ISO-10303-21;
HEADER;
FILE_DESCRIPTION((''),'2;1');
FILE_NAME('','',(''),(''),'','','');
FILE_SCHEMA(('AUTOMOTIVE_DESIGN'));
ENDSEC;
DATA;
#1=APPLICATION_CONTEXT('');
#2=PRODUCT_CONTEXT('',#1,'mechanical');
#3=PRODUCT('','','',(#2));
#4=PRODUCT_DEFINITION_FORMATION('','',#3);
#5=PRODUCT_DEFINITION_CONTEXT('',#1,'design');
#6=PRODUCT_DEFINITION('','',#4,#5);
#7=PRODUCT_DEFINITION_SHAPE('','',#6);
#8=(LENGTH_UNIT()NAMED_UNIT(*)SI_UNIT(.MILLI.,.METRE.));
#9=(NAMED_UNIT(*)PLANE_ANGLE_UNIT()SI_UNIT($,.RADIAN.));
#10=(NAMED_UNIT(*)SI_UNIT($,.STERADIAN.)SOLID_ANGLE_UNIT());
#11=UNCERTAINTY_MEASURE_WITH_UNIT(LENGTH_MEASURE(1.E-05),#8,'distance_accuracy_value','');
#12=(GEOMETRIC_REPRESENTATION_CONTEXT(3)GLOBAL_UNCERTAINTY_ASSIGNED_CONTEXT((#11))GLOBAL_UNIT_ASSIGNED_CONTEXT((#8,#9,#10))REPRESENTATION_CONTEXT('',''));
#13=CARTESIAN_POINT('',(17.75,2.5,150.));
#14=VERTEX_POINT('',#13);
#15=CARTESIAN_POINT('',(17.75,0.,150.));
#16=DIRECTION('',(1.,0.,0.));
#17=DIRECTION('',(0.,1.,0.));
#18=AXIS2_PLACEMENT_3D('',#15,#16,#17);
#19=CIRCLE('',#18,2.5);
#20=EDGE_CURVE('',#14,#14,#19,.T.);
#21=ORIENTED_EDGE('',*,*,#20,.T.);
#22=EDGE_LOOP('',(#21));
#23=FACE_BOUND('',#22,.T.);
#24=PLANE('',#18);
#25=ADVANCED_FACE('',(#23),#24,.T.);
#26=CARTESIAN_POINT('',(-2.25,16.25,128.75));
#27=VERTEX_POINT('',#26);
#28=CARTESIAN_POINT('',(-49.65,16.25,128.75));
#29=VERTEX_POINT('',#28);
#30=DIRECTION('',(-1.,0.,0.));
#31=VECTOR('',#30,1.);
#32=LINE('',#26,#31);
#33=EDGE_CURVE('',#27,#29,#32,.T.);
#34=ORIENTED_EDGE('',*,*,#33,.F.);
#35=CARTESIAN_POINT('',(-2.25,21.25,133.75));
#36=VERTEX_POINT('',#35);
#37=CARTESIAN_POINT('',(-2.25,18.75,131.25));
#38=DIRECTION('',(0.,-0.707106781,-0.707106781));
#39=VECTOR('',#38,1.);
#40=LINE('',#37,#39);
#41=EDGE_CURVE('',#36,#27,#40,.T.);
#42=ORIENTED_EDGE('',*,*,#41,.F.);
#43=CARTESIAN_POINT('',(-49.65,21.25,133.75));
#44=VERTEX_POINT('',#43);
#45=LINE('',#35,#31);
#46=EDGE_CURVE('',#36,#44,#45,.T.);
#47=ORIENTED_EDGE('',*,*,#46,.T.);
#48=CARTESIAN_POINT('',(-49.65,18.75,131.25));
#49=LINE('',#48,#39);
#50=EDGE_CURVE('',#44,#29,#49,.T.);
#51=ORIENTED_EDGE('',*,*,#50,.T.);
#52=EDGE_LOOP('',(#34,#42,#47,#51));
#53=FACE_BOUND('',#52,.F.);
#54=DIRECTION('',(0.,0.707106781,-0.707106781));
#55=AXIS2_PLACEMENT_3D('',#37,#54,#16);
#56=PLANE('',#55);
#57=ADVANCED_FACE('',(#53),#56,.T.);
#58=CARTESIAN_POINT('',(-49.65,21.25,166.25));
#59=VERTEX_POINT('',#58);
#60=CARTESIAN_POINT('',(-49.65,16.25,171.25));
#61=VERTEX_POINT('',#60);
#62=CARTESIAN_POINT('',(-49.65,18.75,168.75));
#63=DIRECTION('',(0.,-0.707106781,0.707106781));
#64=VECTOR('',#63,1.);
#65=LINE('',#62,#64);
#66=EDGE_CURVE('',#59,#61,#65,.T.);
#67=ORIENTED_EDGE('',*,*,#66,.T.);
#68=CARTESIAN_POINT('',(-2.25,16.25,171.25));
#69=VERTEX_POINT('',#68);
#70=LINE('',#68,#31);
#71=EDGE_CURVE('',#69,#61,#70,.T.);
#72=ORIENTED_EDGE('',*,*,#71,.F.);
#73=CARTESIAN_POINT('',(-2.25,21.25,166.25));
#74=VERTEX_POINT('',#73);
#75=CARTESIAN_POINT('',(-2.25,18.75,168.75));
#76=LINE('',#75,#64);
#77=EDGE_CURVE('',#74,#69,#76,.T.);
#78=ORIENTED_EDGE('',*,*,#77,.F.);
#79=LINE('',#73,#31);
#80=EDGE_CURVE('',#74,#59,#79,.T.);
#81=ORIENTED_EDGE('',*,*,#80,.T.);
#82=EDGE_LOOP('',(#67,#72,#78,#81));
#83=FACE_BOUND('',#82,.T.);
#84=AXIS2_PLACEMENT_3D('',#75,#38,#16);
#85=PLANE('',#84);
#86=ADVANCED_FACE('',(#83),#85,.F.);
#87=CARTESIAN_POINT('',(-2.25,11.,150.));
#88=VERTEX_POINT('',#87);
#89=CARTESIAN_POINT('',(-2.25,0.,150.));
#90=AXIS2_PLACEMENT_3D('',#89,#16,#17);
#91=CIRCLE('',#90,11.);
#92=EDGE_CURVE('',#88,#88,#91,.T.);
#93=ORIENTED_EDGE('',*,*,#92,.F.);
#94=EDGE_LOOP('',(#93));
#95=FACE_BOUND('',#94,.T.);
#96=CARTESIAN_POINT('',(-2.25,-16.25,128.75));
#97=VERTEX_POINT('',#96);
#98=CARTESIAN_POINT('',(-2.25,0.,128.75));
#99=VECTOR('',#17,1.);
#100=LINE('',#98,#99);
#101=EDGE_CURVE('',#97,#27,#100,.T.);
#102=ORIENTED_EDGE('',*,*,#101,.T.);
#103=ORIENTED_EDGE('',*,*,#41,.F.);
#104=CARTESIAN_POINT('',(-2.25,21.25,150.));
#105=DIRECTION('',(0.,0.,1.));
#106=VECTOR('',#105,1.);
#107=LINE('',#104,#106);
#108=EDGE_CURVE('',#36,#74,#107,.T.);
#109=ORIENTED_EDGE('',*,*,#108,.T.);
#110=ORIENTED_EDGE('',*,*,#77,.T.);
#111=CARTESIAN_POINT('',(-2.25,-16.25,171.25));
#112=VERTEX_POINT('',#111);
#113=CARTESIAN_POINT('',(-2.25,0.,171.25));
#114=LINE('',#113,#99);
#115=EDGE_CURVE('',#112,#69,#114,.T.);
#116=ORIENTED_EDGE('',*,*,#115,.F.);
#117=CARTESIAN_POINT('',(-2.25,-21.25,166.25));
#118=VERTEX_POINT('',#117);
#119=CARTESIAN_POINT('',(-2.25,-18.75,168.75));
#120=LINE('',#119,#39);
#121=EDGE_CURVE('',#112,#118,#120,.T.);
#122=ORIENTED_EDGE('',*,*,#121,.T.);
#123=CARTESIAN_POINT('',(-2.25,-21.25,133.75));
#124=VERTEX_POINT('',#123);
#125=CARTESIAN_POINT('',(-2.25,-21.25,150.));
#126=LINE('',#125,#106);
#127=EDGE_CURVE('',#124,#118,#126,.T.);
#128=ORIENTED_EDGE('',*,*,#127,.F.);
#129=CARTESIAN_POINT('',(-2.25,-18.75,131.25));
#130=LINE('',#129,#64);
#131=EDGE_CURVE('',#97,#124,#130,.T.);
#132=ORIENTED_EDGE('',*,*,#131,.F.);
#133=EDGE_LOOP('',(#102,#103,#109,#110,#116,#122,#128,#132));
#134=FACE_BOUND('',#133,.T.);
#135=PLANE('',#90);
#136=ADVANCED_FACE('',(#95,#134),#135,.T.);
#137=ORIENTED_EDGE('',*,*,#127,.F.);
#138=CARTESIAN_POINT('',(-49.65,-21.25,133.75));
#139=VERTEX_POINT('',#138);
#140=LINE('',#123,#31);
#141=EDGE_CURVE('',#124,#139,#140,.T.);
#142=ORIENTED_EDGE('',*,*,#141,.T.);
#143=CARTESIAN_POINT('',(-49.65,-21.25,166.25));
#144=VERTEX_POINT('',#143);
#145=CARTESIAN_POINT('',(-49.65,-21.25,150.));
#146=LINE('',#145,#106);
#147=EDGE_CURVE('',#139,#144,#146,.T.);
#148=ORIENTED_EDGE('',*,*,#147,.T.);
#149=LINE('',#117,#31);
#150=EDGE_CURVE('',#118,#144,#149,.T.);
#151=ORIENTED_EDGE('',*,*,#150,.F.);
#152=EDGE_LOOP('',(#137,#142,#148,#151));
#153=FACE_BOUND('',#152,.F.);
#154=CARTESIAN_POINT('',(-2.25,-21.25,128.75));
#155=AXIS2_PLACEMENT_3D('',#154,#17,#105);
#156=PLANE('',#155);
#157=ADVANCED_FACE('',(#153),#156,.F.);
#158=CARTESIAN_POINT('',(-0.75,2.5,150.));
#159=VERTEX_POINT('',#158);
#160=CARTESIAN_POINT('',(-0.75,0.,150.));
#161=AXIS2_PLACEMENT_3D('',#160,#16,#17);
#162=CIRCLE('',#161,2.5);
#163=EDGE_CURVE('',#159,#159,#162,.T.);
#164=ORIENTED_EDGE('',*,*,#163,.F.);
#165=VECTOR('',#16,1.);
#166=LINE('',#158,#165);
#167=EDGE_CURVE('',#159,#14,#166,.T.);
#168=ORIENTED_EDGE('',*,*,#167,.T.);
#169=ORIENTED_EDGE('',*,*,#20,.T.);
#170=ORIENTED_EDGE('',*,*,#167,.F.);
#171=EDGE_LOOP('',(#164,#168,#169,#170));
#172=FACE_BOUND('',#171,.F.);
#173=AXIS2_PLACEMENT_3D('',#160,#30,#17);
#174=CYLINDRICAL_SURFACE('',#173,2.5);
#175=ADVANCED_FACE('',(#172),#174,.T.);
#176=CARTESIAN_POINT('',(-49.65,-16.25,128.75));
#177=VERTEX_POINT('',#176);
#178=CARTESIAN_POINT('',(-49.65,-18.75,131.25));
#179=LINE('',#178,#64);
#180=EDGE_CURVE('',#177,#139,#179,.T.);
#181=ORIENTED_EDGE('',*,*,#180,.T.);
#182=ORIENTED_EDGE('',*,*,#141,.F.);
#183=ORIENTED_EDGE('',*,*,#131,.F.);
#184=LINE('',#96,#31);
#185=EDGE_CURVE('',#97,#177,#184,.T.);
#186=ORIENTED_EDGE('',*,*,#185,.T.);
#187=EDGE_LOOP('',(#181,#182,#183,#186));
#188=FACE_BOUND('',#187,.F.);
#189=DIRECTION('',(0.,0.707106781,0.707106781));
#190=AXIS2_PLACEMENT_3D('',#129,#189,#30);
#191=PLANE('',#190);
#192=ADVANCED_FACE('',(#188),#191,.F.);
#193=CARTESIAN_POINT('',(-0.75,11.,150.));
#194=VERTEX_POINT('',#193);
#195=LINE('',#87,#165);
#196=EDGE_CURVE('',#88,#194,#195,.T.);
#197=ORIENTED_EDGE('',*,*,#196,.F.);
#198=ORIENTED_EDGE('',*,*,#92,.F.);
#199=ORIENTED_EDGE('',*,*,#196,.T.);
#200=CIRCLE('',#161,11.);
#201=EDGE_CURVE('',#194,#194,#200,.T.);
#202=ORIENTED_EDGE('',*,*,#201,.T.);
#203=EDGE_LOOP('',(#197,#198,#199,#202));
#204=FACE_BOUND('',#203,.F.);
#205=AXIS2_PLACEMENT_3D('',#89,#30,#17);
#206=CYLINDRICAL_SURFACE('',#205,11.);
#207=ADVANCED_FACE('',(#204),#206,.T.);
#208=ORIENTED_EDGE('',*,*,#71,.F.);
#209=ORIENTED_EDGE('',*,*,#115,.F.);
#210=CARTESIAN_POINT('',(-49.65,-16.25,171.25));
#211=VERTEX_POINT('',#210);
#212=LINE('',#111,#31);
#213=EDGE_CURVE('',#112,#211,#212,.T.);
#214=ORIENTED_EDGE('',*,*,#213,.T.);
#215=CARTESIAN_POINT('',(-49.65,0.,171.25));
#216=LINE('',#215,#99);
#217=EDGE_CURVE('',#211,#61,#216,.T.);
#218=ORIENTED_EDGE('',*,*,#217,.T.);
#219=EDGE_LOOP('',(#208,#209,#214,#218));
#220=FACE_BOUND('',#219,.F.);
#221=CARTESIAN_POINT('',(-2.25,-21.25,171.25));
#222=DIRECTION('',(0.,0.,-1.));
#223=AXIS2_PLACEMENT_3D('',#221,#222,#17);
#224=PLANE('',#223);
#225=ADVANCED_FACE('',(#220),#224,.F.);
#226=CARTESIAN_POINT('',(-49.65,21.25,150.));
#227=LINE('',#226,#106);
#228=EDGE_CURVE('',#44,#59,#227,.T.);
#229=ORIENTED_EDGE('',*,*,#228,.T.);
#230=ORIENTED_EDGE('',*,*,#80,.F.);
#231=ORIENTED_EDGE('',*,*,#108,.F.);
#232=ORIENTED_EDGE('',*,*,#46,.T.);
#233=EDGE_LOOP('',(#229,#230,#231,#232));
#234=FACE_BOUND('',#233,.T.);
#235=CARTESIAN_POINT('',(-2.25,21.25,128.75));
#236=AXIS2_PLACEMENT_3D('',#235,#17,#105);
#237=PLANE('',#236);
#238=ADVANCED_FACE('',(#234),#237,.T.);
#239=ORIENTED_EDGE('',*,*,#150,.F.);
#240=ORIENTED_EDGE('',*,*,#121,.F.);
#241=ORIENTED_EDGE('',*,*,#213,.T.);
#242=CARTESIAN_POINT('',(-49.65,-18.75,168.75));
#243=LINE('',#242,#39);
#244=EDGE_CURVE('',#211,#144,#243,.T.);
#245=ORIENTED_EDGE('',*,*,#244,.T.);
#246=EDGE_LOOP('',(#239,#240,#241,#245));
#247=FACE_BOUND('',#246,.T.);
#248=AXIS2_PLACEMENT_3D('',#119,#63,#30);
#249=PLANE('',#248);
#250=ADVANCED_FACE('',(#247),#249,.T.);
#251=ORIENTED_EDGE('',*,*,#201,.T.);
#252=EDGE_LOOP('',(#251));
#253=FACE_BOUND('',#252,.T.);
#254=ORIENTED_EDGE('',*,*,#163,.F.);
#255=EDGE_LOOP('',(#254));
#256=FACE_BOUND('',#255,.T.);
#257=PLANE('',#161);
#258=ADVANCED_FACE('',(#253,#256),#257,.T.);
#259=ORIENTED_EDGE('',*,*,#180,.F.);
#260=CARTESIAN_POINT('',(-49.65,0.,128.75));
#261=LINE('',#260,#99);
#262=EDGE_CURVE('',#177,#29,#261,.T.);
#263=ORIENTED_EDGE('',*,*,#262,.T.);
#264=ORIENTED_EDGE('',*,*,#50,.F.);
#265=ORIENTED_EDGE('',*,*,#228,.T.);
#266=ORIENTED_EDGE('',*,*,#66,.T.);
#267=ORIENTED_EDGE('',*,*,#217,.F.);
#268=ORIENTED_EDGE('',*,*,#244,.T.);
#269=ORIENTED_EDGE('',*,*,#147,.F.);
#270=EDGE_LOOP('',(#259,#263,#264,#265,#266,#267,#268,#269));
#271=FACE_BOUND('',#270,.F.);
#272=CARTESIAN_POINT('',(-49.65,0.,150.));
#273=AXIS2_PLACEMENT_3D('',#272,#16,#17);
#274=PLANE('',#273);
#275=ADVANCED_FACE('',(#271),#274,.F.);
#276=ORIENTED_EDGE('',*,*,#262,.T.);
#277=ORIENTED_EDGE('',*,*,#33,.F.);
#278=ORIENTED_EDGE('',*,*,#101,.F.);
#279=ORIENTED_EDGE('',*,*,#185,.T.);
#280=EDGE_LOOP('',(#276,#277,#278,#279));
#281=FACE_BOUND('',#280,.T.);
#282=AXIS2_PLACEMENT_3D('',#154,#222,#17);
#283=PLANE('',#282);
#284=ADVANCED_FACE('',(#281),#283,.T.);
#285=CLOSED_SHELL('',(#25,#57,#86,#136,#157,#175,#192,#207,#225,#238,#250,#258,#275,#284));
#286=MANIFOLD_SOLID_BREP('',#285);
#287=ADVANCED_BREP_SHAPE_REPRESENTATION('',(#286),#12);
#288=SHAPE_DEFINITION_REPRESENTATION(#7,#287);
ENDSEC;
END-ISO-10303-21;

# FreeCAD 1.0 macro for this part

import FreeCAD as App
import Part
import Sketcher
Q = App.Units.Quantity


def edges_at(feature, points):
    """Names of the edges that pass closest to the given points."""
    edges = feature.Shape.Edges
    near = lambda p: min(range(len(edges)), key=lambda i: edges[i].distToShape(Part.Vertex(*p))[0])
    return sorted({f"Edge{near(p) + 1}" for p in points})

doc = App.newDocument("Part")
body = doc.addObject("PartDesign::Body", "Body")

# Sketch on XZ plane
sketch1 = body.newObject("Sketcher::SketchObject", "Sketch")
sketch1.AttachmentSupport = (doc.getObject("XZ_Plane"), [""])
sketch1.MapMode = "FlatFace"
sketch1.addGeometry([
    Part.LineSegment(App.Vector(-21.25, 21.25, 0), App.Vector(-21.25, -21.25, 0)),
    Part.LineSegment(App.Vector(-21.25, -21.25, 0), App.Vector(21.25, -21.25, 0)),
    Part.LineSegment(App.Vector(21.25, -21.25, 0), App.Vector(21.25, 21.25, 0)),
    Part.LineSegment(App.Vector(21.25, 21.25, 0), App.Vector(-21.25, 21.25, 0)),
], False)
sketch1.addConstraint([
    Sketcher.Constraint("Coincident", 0, 2, 1, 1),
    Sketcher.Constraint("Coincident", 1, 2, 2, 1),
    Sketcher.Constraint("Coincident", 2, 2, 3, 1),
    Sketcher.Constraint("Coincident", 3, 2, 0, 1),
    Sketcher.Constraint("Vertical", 0),
    Sketcher.Constraint("Horizontal", 1),
    Sketcher.Constraint("Vertical", 2),
    Sketcher.Constraint("Horizontal", 3),
    Sketcher.Constraint("Symmetric", 0, 2, 2, 2, -1, 1),
    Sketcher.Constraint("Equal", 3, 0),
    Sketcher.Constraint("DistanceX", 1, 1, 1, 2, Q("42.5 mm")),
])
pad1 = body.newObject("PartDesign::Pad", "Pad")
pad1.Profile = sketch1
pad1.Length = 47.4
pad1.Reversed = True
doc.recompute()

chamfer = body.newObject("PartDesign::Chamfer", "Chamfer")
chamfer.Base = (pad1, edges_at(pad1, [(21.25, 23.7, 21.25)]))
chamfer.Size = 5
doc.recompute()

chamfer2 = body.newObject("PartDesign::Chamfer", "Chamfer001")
chamfer2.Base = (chamfer, edges_at(chamfer, [(-21.25, 23.7, 21.25)]))
chamfer2.Size = 5
doc.recompute()

chamfer3 = body.newObject("PartDesign::Chamfer", "Chamfer002")
chamfer3.Base = (chamfer2, edges_at(chamfer2, [(21.25, 23.7, -21.25)]))
chamfer3.Size = 5
doc.recompute()

chamfer4 = body.newObject("PartDesign::Chamfer", "Chamfer003")
chamfer4.Base = (chamfer3, edges_at(chamfer3, [(-21.25, 23.7, -21.25)]))
chamfer4.Size = 5

# Sketch on XZ plane
sketch2 = body.newObject("Sketcher::SketchObject", "Sketch001")
sketch2.AttachmentSupport = (doc.getObject("XZ_Plane"), [""])
sketch2.MapMode = "FlatFace"
sketch2.addGeometry(Part.Circle(App.Vector(0, 0, 0), App.Vector(0, 0, 1), 11), False)
sketch2.addConstraint([
    Sketcher.Constraint("Coincident", 0, 3, -1, 1),
    Sketcher.Constraint("Diameter", 0, Q("22 mm")),
])
pad2 = body.newObject("PartDesign::Pad", "Pad001")
pad2.Profile = sketch2
pad2.Length = 1.5

# Sketch on XZ plane
sketch3 = body.newObject("Sketcher::SketchObject", "Sketch002")
sketch3.AttachmentSupport = (doc.getObject("XZ_Plane"), [""])
sketch3.MapMode = "FlatFace"
sketch3.AttachmentOffset = App.Placement(App.Vector(0, 0, 1.5), App.Rotation())
sketch3.addGeometry(Part.Circle(App.Vector(0, 0, 0), App.Vector(0, 0, 1), 2.5), False)
sketch3.addConstraint([
    Sketcher.Constraint("Coincident", 0, 3, -1, 1),
    Sketcher.Constraint("Diameter", 0, Q("5 mm")),
])
pad3 = body.newObject("PartDesign::Pad", "Pad002")
pad3.Profile = sketch3
pad3.Length = 18.5
body2 = doc.addObject("PartDesign::Body", "Body001")
doc.recompute()

body.Placement = App.Placement(App.Vector(-2.25, 0, 150), App.Rotation(App.Vector(0, 0, 1), 90))
boolean = body2.newObject("PartDesign::Boolean", "Boolean")
boolean.Type = "Fuse"
boolean.addObjects([body])

doc.recompute()
